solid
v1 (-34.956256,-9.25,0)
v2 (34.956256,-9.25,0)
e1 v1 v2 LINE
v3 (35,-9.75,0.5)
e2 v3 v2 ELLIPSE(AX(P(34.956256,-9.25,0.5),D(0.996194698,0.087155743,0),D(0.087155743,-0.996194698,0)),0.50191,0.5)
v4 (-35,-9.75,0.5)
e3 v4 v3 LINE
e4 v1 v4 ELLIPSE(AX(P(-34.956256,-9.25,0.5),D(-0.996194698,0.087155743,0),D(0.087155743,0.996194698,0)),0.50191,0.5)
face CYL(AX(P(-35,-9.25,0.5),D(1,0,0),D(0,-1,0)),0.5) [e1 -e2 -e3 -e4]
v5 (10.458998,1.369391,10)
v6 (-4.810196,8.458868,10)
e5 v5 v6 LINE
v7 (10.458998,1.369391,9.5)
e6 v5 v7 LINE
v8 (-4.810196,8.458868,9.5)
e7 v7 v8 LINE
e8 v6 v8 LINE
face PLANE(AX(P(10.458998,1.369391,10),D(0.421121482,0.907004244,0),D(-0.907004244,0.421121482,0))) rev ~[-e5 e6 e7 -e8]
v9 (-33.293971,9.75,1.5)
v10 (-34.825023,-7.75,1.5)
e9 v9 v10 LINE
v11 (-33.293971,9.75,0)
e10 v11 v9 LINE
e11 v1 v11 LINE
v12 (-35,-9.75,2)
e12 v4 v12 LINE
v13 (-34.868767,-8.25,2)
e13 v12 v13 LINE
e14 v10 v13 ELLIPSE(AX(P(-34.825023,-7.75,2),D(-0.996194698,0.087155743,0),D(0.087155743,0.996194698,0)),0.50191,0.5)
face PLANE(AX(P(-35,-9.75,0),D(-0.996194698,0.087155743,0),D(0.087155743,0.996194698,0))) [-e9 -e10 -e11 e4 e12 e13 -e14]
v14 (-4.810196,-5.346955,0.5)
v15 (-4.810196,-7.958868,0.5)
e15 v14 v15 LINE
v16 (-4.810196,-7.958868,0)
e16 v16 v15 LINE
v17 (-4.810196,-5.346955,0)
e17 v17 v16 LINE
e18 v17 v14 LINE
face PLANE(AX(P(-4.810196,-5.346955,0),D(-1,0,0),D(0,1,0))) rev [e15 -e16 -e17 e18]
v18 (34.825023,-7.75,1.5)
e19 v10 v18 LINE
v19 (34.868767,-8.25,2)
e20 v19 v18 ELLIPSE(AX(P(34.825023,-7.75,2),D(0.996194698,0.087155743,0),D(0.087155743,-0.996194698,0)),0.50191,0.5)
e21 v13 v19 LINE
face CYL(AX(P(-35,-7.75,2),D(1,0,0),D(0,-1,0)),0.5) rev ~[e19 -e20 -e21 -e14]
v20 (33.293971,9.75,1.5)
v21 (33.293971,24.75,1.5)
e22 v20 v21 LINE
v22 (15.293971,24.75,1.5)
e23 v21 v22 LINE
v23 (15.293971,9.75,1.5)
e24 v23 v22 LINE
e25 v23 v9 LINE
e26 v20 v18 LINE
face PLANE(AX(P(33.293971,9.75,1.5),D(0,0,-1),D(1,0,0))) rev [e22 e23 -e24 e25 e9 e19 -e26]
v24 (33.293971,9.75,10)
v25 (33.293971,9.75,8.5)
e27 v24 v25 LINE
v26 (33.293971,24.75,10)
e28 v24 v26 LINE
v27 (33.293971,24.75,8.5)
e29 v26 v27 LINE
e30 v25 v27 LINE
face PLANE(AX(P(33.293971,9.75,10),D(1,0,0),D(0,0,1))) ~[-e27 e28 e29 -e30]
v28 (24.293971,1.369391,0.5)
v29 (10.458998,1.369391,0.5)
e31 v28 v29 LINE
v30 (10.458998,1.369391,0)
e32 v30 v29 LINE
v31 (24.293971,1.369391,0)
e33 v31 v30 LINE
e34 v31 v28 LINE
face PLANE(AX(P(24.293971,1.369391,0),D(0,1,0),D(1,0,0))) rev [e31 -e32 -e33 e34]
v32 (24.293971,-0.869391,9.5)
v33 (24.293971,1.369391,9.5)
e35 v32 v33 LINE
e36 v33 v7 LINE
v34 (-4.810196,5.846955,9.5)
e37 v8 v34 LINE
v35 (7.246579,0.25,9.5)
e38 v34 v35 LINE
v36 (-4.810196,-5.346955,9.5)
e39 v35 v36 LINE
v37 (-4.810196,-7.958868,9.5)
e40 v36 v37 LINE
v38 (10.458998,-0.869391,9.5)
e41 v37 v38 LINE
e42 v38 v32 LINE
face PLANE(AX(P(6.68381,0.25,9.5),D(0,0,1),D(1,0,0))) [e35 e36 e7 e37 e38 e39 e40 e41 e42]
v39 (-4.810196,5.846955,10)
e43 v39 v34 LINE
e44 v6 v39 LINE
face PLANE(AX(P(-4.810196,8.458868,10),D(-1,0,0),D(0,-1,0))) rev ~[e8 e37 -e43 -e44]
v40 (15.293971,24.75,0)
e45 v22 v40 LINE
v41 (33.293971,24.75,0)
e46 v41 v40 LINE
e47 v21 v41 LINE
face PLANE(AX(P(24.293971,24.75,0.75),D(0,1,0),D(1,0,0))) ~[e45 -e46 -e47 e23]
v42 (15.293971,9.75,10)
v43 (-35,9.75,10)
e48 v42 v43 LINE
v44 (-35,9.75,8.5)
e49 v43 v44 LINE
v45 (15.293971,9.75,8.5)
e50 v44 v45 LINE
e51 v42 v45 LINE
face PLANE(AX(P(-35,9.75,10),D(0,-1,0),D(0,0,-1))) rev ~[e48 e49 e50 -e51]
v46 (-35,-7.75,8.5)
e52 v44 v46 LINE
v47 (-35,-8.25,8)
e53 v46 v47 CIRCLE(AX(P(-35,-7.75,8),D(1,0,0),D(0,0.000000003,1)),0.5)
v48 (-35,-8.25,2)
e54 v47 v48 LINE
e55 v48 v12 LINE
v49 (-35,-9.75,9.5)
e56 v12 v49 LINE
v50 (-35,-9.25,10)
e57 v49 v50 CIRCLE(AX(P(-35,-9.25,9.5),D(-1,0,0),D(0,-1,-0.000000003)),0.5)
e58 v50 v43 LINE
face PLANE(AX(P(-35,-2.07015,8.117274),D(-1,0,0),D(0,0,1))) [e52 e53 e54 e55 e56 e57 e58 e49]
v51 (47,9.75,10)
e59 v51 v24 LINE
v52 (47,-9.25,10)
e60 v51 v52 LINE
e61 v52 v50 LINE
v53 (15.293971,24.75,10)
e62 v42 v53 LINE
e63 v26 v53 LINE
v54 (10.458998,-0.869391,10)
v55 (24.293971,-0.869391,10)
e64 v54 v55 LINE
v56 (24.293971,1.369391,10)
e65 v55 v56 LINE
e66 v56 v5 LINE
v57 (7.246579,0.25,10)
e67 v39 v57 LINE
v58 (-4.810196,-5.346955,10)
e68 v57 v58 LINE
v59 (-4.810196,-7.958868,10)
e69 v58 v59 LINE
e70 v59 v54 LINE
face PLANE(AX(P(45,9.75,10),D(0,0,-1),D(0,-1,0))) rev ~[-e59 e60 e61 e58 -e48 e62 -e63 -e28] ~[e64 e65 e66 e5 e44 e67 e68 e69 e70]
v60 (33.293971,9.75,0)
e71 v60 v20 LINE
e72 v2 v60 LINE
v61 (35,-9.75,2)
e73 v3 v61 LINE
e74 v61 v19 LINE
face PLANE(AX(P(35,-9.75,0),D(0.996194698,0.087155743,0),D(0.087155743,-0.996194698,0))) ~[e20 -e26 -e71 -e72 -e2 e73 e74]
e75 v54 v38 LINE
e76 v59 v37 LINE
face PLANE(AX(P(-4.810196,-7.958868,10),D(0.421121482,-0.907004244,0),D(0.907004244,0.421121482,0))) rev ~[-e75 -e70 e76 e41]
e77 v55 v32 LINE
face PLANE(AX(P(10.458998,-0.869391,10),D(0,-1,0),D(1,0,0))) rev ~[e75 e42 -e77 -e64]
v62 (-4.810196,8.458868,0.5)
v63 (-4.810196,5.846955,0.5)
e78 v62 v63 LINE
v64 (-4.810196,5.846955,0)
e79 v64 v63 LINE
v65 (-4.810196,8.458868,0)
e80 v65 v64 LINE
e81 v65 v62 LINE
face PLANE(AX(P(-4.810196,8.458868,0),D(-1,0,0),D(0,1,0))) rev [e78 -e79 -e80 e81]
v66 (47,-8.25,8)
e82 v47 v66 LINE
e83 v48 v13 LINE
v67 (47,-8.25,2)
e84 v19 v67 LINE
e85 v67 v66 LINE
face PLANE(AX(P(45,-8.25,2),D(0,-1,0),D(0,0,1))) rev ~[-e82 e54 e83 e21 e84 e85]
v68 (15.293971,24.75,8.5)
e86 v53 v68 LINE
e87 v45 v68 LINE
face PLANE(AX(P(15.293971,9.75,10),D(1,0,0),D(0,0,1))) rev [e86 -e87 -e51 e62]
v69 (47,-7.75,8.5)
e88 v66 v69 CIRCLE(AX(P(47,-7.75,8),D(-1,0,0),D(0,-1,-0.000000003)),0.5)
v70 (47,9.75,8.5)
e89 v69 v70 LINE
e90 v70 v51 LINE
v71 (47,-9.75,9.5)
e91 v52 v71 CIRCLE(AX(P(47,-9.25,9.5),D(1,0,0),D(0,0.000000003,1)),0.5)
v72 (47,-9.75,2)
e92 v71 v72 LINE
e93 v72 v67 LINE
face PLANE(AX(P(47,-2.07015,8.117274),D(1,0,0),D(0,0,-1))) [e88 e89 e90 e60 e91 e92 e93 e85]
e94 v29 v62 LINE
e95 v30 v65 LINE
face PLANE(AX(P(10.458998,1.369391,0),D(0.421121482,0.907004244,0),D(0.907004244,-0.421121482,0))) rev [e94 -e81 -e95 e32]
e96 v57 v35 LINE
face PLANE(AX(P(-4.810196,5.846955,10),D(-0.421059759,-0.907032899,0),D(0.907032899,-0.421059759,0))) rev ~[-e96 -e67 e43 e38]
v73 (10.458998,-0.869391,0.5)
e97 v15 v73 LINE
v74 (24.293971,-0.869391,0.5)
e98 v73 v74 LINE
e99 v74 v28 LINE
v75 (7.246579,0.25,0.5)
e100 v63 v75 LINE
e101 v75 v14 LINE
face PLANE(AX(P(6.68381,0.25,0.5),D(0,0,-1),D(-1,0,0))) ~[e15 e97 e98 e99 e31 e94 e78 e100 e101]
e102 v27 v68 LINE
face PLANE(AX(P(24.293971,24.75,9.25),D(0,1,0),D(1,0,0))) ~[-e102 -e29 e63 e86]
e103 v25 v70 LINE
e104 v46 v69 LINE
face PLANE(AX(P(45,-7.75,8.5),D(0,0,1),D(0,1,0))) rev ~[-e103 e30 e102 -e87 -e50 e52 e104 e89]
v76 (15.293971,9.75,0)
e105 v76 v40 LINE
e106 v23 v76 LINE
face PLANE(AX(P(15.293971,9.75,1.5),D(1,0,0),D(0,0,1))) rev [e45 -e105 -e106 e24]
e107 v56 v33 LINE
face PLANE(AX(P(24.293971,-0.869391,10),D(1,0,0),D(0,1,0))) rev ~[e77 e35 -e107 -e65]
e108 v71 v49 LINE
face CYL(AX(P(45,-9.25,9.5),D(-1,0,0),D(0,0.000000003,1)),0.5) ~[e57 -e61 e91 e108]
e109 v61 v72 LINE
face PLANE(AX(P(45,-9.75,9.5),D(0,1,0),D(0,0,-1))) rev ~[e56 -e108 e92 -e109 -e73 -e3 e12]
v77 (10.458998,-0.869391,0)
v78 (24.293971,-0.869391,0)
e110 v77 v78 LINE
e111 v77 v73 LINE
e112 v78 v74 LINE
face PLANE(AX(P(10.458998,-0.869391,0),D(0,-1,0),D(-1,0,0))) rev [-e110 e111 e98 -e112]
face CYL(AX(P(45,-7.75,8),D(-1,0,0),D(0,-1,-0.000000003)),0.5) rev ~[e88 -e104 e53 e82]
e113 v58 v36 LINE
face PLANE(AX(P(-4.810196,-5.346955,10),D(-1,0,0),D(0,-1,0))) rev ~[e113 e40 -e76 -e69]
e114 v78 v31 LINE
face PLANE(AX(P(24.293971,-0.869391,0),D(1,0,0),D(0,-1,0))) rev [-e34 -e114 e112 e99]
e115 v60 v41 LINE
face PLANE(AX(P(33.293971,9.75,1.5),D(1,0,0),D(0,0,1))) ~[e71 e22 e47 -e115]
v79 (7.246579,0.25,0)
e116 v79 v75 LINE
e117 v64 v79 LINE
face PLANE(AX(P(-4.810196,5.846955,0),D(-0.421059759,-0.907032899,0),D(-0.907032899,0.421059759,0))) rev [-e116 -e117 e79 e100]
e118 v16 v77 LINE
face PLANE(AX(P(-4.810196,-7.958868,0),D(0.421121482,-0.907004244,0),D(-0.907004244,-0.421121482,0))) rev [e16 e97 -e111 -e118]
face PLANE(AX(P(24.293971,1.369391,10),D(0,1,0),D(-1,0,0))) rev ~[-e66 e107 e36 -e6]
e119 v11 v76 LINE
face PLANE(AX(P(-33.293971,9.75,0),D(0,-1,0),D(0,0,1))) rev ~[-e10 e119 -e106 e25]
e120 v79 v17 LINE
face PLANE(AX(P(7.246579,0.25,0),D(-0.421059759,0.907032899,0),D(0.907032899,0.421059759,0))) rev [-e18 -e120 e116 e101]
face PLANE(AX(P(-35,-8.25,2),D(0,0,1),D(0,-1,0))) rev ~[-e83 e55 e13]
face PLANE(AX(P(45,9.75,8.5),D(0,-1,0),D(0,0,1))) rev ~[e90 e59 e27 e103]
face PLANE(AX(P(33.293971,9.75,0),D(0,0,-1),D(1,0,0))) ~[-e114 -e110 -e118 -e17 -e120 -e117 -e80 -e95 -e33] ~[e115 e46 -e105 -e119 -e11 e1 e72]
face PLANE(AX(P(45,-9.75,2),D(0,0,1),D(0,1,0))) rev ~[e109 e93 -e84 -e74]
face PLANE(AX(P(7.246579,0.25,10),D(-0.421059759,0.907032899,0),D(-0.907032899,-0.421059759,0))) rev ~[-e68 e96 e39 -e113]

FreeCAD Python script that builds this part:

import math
import FreeCAD as App
import Part
import Sketcher
from FreeCAD import Vector
Q = App.Units.Quantity


def edges_at(feature, points):
    """Names of the edges that pass closest to the given points."""
    edges = feature.Shape.Edges
    near = lambda p: min(range(len(edges)), key=lambda i: edges[i].distToShape(Part.Vertex(*p))[0])
    return sorted({f"Edge{near(p) + 1}" for p in points})


def faces_at(feature, points):
    """Names of the faces that lie closest to the given points."""
    faces = feature.Shape.Faces
    near = lambda p: min(range(len(faces)), key=lambda i: faces[i].distToShape(Part.Vertex(*p))[0])
    return sorted({f"Face{near(p) + 1}" for p in points})

doc = App.newDocument("Part")
body = doc.addObject("PartDesign::Body", "Body")

# Sketch on XY plane
sketch1 = doc.addObject("Sketcher::SketchObject", "Sketch")
body.addObject(sketch1)
sketch1.AttachmentSupport = (doc.XY_Plane, [""])
sketch1.MapMode = "FlatFace"
sketch1.addGeometry(Part.LineSegment(Vector(-35, 10, 0), Vector(-35, -10, 0)), False)
sketch1.addGeometry(Part.LineSegment(Vector(-35, -10, 0), Vector(35, -10, 0)), False)
sketch1.addGeometry(Part.LineSegment(Vector(35, -10, 0), Vector(35, 10, 0)), False)
sketch1.addGeometry(Part.LineSegment(Vector(35, 10, 0), Vector(-35, 10, 0)), False)
sketch1.addConstraint(Sketcher.Constraint("Coincident", 0, 2, 1, 1))
sketch1.addConstraint(Sketcher.Constraint("Coincident", 1, 2, 2, 1))
sketch1.addConstraint(Sketcher.Constraint("Coincident", 2, 2, 3, 1))
sketch1.addConstraint(Sketcher.Constraint("Coincident", 3, 2, 0, 1))
sketch1.addConstraint(Sketcher.Constraint("Vertical", 0))
sketch1.addConstraint(Sketcher.Constraint("Horizontal", 1))
sketch1.addConstraint(Sketcher.Constraint("Vertical", 2))
sketch1.addConstraint(Sketcher.Constraint("Horizontal", 3))
sketch1.addConstraint(Sketcher.Constraint("Symmetric", 0, 2, 2, 2, -1, 1))
sketch1.addConstraint(Sketcher.Constraint("DistanceX", 1, 1, 1, 2, Q("70 mm")))
sketch1.addConstraint(Sketcher.Constraint("DistanceY", 0, 2, 0, 1, Q("19.5 mm")))
pad1 = doc.addObject("PartDesign::Pad", "Pad")
body.addObject(pad1)
pad1.Profile = sketch1
pad1.Length = 10
doc.recompute()

thickness = doc.addObject("PartDesign::Thickness", "Thickness")
body.addObject(thickness)
thickness.Base = (pad1, faces_at(pad1, [(-35, 0, 5), (0, 9.75, 5), (35, 0, 5)]))
thickness.Value = 1.5
thickness.Reversed = True
thickness.Join = "Intersection"
doc.recompute()

fillet = doc.addObject("PartDesign::Fillet", "Fillet")
body.addObject(fillet)
fillet.Base = (thickness, edges_at(thickness, [(0, -8.25, 1.5), (0, -8.25, 8.5)]))
fillet.Radius = 0.5
doc.recompute()

fillet2 = doc.addObject("PartDesign::Fillet", "Fillet001")
body.addObject(fillet2)
fillet2.Base = (fillet, edges_at(fillet, [(0, -9.75, 10), (0, -9.75, 0)]))
fillet2.Radius = 0.5

# Sketch on XY plane
sketch2 = doc.addObject("Sketcher::SketchObject", "Sketch001")
body.addObject(sketch2)
sketch2.AttachmentSupport = (doc.XY_Plane, [""])
sketch2.MapMode = "FlatFace"
sketch2.addGeometry(Part.LineSegment(Vector(-33.3, 9.8, 0), Vector(-35, -9.8, 0)), False)
sketch2.addGeometry(Part.LineSegment(Vector(-35, -9.8, 0), Vector(-35, 9.8, 0)), False)
sketch2.addGeometry(Part.LineSegment(Vector(-35, 9.8, 0), Vector(-33.3, 9.8, 0)), False)
sketch2.addConstraint(Sketcher.Constraint("Coincident", 0, 2, 1, 1))
sketch2.addConstraint(Sketcher.Constraint("Coincident", 1, 2, 2, 1))
sketch2.addConstraint(Sketcher.Constraint("Coincident", 2, 2, 0, 1))
sketch2.addConstraint(Sketcher.Constraint("Vertical", 1))
sketch2.addConstraint(Sketcher.Constraint("Horizontal", 2))
sketch2.addConstraint(Sketcher.Constraint("Angle", 0, Q("-95 deg")))
sketch2.addConstraint(Sketcher.Constraint("DistanceY", 1, 1, 1, 2, Q("19.5 mm")))
sketch2.addConstraint(Sketcher.Constraint("DistanceX", 0, 2, -1, 1, Q("35 mm")))
sketch2.addConstraint(Sketcher.Constraint("DistanceY", 0, 2, -1, 1, Q("9.75 mm")))
pocket1 = doc.addObject("PartDesign::Pocket", "Pocket")
body.addObject(pocket1)
pocket1.Profile = sketch2
pocket1.Length = 2
pocket1.Reversed = True
doc.recompute()

mirrored = doc.addObject("PartDesign::Mirrored", "Mirrored")
body.addObject(mirrored)
mirrored.Originals = [pocket1]
mirrored.MirrorPlane = (doc.YZ_Plane, [""])
body.Tip = mirrored

# Sketch on YZ plane
sketch3 = doc.addObject("Sketcher::SketchObject", "Sketch002")
body.addObject(sketch3)
sketch3.AttachmentSupport = (doc.YZ_Plane, [""])
sketch3.MapMode = "FlatFace"
sketch3.AttachmentOffset = App.Placement(Vector(0, 0, -35), App.Rotation())
sketch3.addGeometry(Part.LineSegment(Vector(-8.25, 2, 0), Vector(-9.75, 2, 0)), False)
sketch3.addGeometry(Part.LineSegment(Vector(-9.75, 2, 0), Vector(-9.75, 9.5, 0)), False)
sketch3.addGeometry(Part.ArcOfCircle(Part.Circle(Vector(-9.25, 9.5, 0), Vector(0, 0, 1), 0.5), math.radians(90), math.radians(180)), False)
sketch3.addGeometry(Part.LineSegment(Vector(-9.25, 10, 0), Vector(9.75, 10, 0)), False)
sketch3.addGeometry(Part.LineSegment(Vector(9.75, 10, 0), Vector(9.75, 8.5, 0)), False)
sketch3.addGeometry(Part.LineSegment(Vector(9.75, 8.5, 0), Vector(-7.75, 8.5, 0)), False)
sketch3.addGeometry(Part.ArcOfCircle(Part.Circle(Vector(-7.75, 8, 0), Vector(0, 0, 1), 0.5), math.radians(90), math.radians(180)), False)
sketch3.addGeometry(Part.LineSegment(Vector(-8.25, 8, 0), Vector(-8.25, 2, 0)), False)
sketch3.addConstraint(Sketcher.Constraint("Coincident", 0, 2, 1, 1))
sketch3.addConstraint(Sketcher.Constraint("Tangent", 1, 2, 2, 2))
sketch3.addConstraint(Sketcher.Constraint("Tangent", 2, 1, 3, 1))
sketch3.addConstraint(Sketcher.Constraint("Coincident", 3, 2, 4, 1))
sketch3.addConstraint(Sketcher.Constraint("Coincident", 4, 2, 5, 1))
sketch3.addConstraint(Sketcher.Constraint("Tangent", 5, 2, 6, 1))
sketch3.addConstraint(Sketcher.Constraint("Tangent", 6, 2, 7, 1))
sketch3.addConstraint(Sketcher.Constraint("Coincident", 7, 2, 0, 1))
sketch3.addConstraint(Sketcher.Constraint("Horizontal", 0))
sketch3.addConstraint(Sketcher.Constraint("Vertical", 1))
sketch3.addConstraint(Sketcher.Constraint("Horizontal", 3))
sketch3.addConstraint(Sketcher.Constraint("Vertical", 4))
sketch3.addConstraint(Sketcher.Constraint("Horizontal", 5))
sketch3.addConstraint(Sketcher.Constraint("Vertical", 7))
sketch3.addConstraint(Sketcher.Constraint("Equal", 2, 6))
sketch3.addConstraint(Sketcher.Constraint("Equal", 0, 4))
sketch3.addConstraint(Sketcher.Constraint("Radius", 2, Q("0.5 mm")))
sketch3.addConstraint(Sketcher.Constraint("DistanceX", 3, 1, 3, 2, Q("19 mm")))
sketch3.addConstraint(Sketcher.Constraint("DistanceY", 7, 2, 7, 1, Q("6 mm")))
sketch3.addConstraint(Sketcher.Constraint("DistanceX", 0, 2, 0, 1, Q("1.5 mm")))
sketch3.addConstraint(Sketcher.Constraint("DistanceY", -1, 1, 6, 3, Q("8 mm")))
sketch3.addConstraint(Sketcher.Constraint("DistanceX", 2, 3, -1, 1, Q("9.25 mm")))
pad2 = doc.addObject("PartDesign::Pad", "Pad001")
body.addObject(pad2)
pad2.Profile = sketch3
pad2.Length = 10
pad2.Reversed = True

# Sketch on XZ plane
sketch4 = doc.addObject("Sketcher::SketchObject", "Sketch003")
body.addObject(sketch4)
sketch4.AttachmentSupport = (doc.XZ_Plane, [""])
sketch4.MapMode = "FlatFace"
sketch4.AttachmentOffset = App.Placement(Vector(0, 0, -9.75), App.Rotation())
sketch4.addGeometry(Part.LineSegment(Vector(-33.3, 0, 0), Vector(-33.3, 1.5, 0)), False)
sketch4.addGeometry(Part.LineSegment(Vector(-33.3, 1.5, 0), Vector(-15.3, 1.5, 0)), False)
sketch4.addGeometry(Part.LineSegment(Vector(-15.3, 1.5, 0), Vector(-15.3, 0, 0)), False)
sketch4.addGeometry(Part.LineSegment(Vector(-15.3, 0, 0), Vector(-33.3, 0, 0)), False)
sketch4.addGeometry(Part.LineSegment(Vector(-33.3, 8.5, 0), Vector(-33.3, 10, 0)), False)
sketch4.addGeometry(Part.LineSegment(Vector(-33.3, 10, 0), Vector(-15.3, 10, 0)), False)
sketch4.addGeometry(Part.LineSegment(Vector(-15.3, 10, 0), Vector(-15.3, 8.5, 0)), False)
sketch4.addGeometry(Part.LineSegment(Vector(-15.3, 8.5, 0), Vector(-33.3, 8.5, 0)), False)
sketch4.addConstraint(Sketcher.Constraint("Coincident", 0, 2, 1, 1))
sketch4.addConstraint(Sketcher.Constraint("Coincident", 1, 2, 2, 1))
sketch4.addConstraint(Sketcher.Constraint("Coincident", 2, 2, 3, 1))
sketch4.addConstraint(Sketcher.Constraint("Coincident", 3, 2, 0, 1))
sketch4.addConstraint(Sketcher.Constraint("Coincident", 4, 2, 5, 1))
sketch4.addConstraint(Sketcher.Constraint("Coincident", 5, 2, 6, 1))
sketch4.addConstraint(Sketcher.Constraint("Coincident", 6, 2, 7, 1))
sketch4.addConstraint(Sketcher.Constraint("Coincident", 7, 2, 4, 1))
sketch4.addConstraint(Sketcher.Constraint("Vertical", 0))
sketch4.addConstraint(Sketcher.Constraint("Horizontal", 1))
sketch4.addConstraint(Sketcher.Constraint("Vertical", 2))
sketch4.addConstraint(Sketcher.Constraint("Horizontal", 3))
sketch4.addConstraint(Sketcher.Constraint("Vertical", 4))
sketch4.addConstraint(Sketcher.Constraint("Horizontal", 5))
sketch4.addConstraint(Sketcher.Constraint("Vertical", 6))
sketch4.addConstraint(Sketcher.Constraint("Horizontal", 7))
sketch4.addConstraint(Sketcher.Constraint("PointOnObject", 2, 2, -1))
sketch4.addConstraint(Sketcher.Constraint("Vertical", 3, 2, 4, 2))
sketch4.addConstraint(Sketcher.Constraint("Vertical", 2, 2, 5, 2))
sketch4.addConstraint(Sketcher.Constraint("Equal", 2, 4))
sketch4.addConstraint(Sketcher.Constraint("DistanceX", 1, 1, 1, 2, Q("18 mm")))
sketch4.addConstraint(Sketcher.Constraint("DistanceY", 0, 1, 0, 2, Q("1.5 mm")))
sketch4.addConstraint(Sketcher.Constraint("DistanceY", -1, 1, 4, 2, Q("10 mm")))
sketch4.addConstraint(Sketcher.Constraint("DistanceX", 0, 2, -1, 1, Q("33.293971 mm")))
pad3 = doc.addObject("PartDesign::Pad", "Pad002")
body.addObject(pad3)
pad3.Profile = sketch4
pad3.Length = 15
pad3.Reversed = True
doc.recompute()

mirrored2 = doc.addObject("PartDesign::Mirrored", "Mirrored001")
body.addObject(mirrored2)
mirrored2.Originals = [pad2, pad3]
mirrored2.MirrorPlane = (doc.YZ_Plane, [""])
body.Tip = mirrored2

# Sketch on YZ plane
sketch5 = doc.addObject("Sketcher::SketchObject", "Sketch004")
body.addObject(sketch5)
sketch5.AttachmentSupport = (doc.YZ_Plane, [""])
sketch5.MapMode = "FlatFace"
sketch5.AttachmentOffset = App.Placement(Vector(0, 0, -45), App.Rotation())
sketch5.addGeometry(Part.LineSegment(Vector(-9.75, 2, 0), Vector(-9.75, 9.5, 0)), False)
sketch5.addGeometry(Part.ArcOfCircle(Part.Circle(Vector(-9.25, 9.5, 0), Vector(0, 0, 1), 0.5), math.radians(90), math.radians(180)), False)
sketch5.addGeometry(Part.LineSegment(Vector(-9.25, 10, 0), Vector(9.75, 10, 0)), False)
sketch5.addGeometry(Part.LineSegment(Vector(9.75, 10, 0), Vector(9.75, 8.5, 0)), False)
sketch5.addGeometry(Part.LineSegment(Vector(9.75, 8.5, 0), Vector(-7.75, 8.5, 0)), False)
sketch5.addGeometry(Part.ArcOfCircle(Part.Circle(Vector(-7.75, 8, 0), Vector(0, 0, 1), 0.5), math.radians(90), math.radians(180)), False)
sketch5.addGeometry(Part.LineSegment(Vector(-8.25, 8, 0), Vector(-8.25, 2, 0)), False)
sketch5.addGeometry(Part.LineSegment(Vector(-8.25, 2, 0), Vector(-9.75, 2, 0)), False)
sketch5.addConstraint(Sketcher.Constraint("Tangent", 0, 2, 1, 2))
sketch5.addConstraint(Sketcher.Constraint("Tangent", 1, 1, 2, 1))
sketch5.addConstraint(Sketcher.Constraint("Coincident", 2, 2, 3, 1))
sketch5.addConstraint(Sketcher.Constraint("Coincident", 3, 2, 4, 1))
sketch5.addConstraint(Sketcher.Constraint("Tangent", 4, 2, 5, 1))
sketch5.addConstraint(Sketcher.Constraint("Tangent", 5, 2, 6, 1))
sketch5.addConstraint(Sketcher.Constraint("Coincident", 6, 2, 7, 1))
sketch5.addConstraint(Sketcher.Constraint("Coincident", 7, 2, 0, 1))
sketch5.addConstraint(Sketcher.Constraint("Vertical", 0))
sketch5.addConstraint(Sketcher.Constraint("Horizontal", 2))
sketch5.addConstraint(Sketcher.Constraint("Vertical", 3))
sketch5.addConstraint(Sketcher.Constraint("Horizontal", 4))
sketch5.addConstraint(Sketcher.Constraint("Vertical", 6))
sketch5.addConstraint(Sketcher.Constraint("Horizontal", 7))
sketch5.addConstraint(Sketcher.Constraint("Equal", 1, 5))
sketch5.addConstraint(Sketcher.Constraint("Equal", 7, 3))
sketch5.addConstraint(Sketcher.Constraint("Radius", 1, Q("0.5 mm")))
sketch5.addConstraint(Sketcher.Constraint("DistanceX", 2, 1, 2, 2, Q("19 mm")))
sketch5.addConstraint(Sketcher.Constraint("DistanceY", 6, 2, 6, 1, Q("6 mm")))
sketch5.addConstraint(Sketcher.Constraint("DistanceX", 4, 2, 4, 1, Q("17.5 mm")))
sketch5.addConstraint(Sketcher.Constraint("DistanceY", -1, 1, 5, 3, Q("8 mm")))
sketch5.addConstraint(Sketcher.Constraint("DistanceX", 1, 3, -1, 1, Q("9.25 mm")))
pocket2 = doc.addObject("PartDesign::Pocket", "Pocket001")
body.addObject(pocket2)
pocket2.Profile = sketch5
pocket2.Length = 10
pocket2.Reversed = True

# Sketch on YZ plane
sketch6 = doc.addObject("Sketcher::SketchObject", "Sketch005")
body.addObject(sketch6)
sketch6.AttachmentSupport = (doc.YZ_Plane, [""])
sketch6.MapMode = "FlatFace"
sketch6.AttachmentOffset = App.Placement(Vector(0, 0, -33.293971), App.Rotation())
sketch6.addGeometry(Part.LineSegment(Vector(24.8, 0, 0), Vector(9.8, 0, 0)), False)
sketch6.addGeometry(Part.LineSegment(Vector(9.8, 0, 0), Vector(9.8, 1.5, 0)), False)
sketch6.addGeometry(Part.LineSegment(Vector(9.8, 1.5, 0), Vector(24.8, 1.5, 0)), False)
sketch6.addGeometry(Part.LineSegment(Vector(24.8, 1.5, 0), Vector(24.8, 0, 0)), False)
sketch6.addGeometry(Part.LineSegment(Vector(24.8, 8.5, 0), Vector(9.8, 8.5, 0)), False)
sketch6.addGeometry(Part.LineSegment(Vector(9.8, 8.5, 0), Vector(9.8, 10, 0)), False)
sketch6.addGeometry(Part.LineSegment(Vector(9.8, 10, 0), Vector(24.8, 10, 0)), False)
sketch6.addGeometry(Part.LineSegment(Vector(24.8, 10, 0), Vector(24.8, 8.5, 0)), False)
sketch6.addConstraint(Sketcher.Constraint("Coincident", 0, 2, 1, 1))
sketch6.addConstraint(Sketcher.Constraint("Coincident", 1, 2, 2, 1))
sketch6.addConstraint(Sketcher.Constraint("Coincident", 2, 2, 3, 1))
sketch6.addConstraint(Sketcher.Constraint("Coincident", 3, 2, 0, 1))
sketch6.addConstraint(Sketcher.Constraint("Coincident", 4, 2, 5, 1))
sketch6.addConstraint(Sketcher.Constraint("Coincident", 5, 2, 6, 1))
sketch6.addConstraint(Sketcher.Constraint("Coincident", 6, 2, 7, 1))
sketch6.addConstraint(Sketcher.Constraint("Coincident", 7, 2, 4, 1))
sketch6.addConstraint(Sketcher.Constraint("Horizontal", 0))
sketch6.addConstraint(Sketcher.Constraint("Vertical", 1))
sketch6.addConstraint(Sketcher.Constraint("Horizontal", 2))
sketch6.addConstraint(Sketcher.Constraint("Vertical", 3))
sketch6.addConstraint(Sketcher.Constraint("Horizontal", 4))
sketch6.addConstraint(Sketcher.Constraint("Vertical", 5))
sketch6.addConstraint(Sketcher.Constraint("Horizontal", 6))
sketch6.addConstraint(Sketcher.Constraint("Vertical", 7))
sketch6.addConstraint(Sketcher.Constraint("PointOnObject", 0, 2, -1))
sketch6.addConstraint(Sketcher.Constraint("Vertical", 1, 2, 4, 2))
sketch6.addConstraint(Sketcher.Constraint("Vertical", 3, 2, 6, 2))
sketch6.addConstraint(Sketcher.Constraint("Equal", 3, 5))
sketch6.addConstraint(Sketcher.Constraint("DistanceX", 0, 2, 0, 1, Q("15 mm")))
sketch6.addConstraint(Sketcher.Constraint("DistanceY", 1, 1, 1, 2, Q("1.5 mm")))
sketch6.addConstraint(Sketcher.Constraint("DistanceY", -1, 1, 5, 2, Q("10 mm")))
sketch6.addConstraint(Sketcher.Constraint("DistanceX", -1, 1, 0, 2, Q("9.75 mm")))
pocket3 = doc.addObject("PartDesign::Pocket", "Pocket002")
body.addObject(pocket3)
pocket3.Profile = sketch6
pocket3.Length = 18
pocket3.Reversed = True

# Sketch on XY plane
sketch7 = doc.addObject("Sketcher::SketchObject", "Sketch006")
body.addObject(sketch7)
sketch7.AttachmentSupport = (doc.XY_Plane, [""])
sketch7.MapMode = "FlatFace"
sketch7.AttachmentOffset = App.Placement(Vector(0, 0, 10), App.Rotation())
sketch7.addGeometry(Part.LineSegment(Vector(-4.8, 8.5, 0), Vector(-4.8, 5.8, 0)), False)
sketch7.addGeometry(Part.LineSegment(Vector(-4.8, 5.8, 0), Vector(7.2, 0.2, 0)), False)
sketch7.addGeometry(Part.LineSegment(Vector(7.2, 0.2, 0), Vector(-4.8, -5.3, 0)), False)
sketch7.addGeometry(Part.LineSegment(Vector(-4.8, -5.3, 0), Vector(-4.8, -8, 0)), False)
sketch7.addGeometry(Part.LineSegment(Vector(-4.8, -8, 0), Vector(10.5, -0.9, 0)), False)
sketch7.addGeometry(Part.LineSegment(Vector(10.5, -0.9, 0), Vector(24.3, -0.9, 0)), False)
sketch7.addGeometry(Part.LineSegment(Vector(24.3, -0.9, 0), Vector(24.3, 1.4, 0)), False)
sketch7.addGeometry(Part.LineSegment(Vector(24.3, 1.4, 0), Vector(10.5, 1.4, 0)), False)
sketch7.addGeometry(Part.LineSegment(Vector(10.5, 1.4, 0), Vector(-4.8, 8.5, 0)), False)
sketch7.addConstraint(Sketcher.Constraint("Coincident", 0, 2, 1, 1))
sketch7.addConstraint(Sketcher.Constraint("Coincident", 1, 2, 2, 1))
sketch7.addConstraint(Sketcher.Constraint("Coincident", 2, 2, 3, 1))
sketch7.addConstraint(Sketcher.Constraint("Coincident", 3, 2, 4, 1))
sketch7.addConstraint(Sketcher.Constraint("Coincident", 4, 2, 5, 1))
sketch7.addConstraint(Sketcher.Constraint("Coincident", 5, 2, 6, 1))
sketch7.addConstraint(Sketcher.Constraint("Coincident", 6, 2, 7, 1))
sketch7.addConstraint(Sketcher.Constraint("Coincident", 7, 2, 8, 1))
sketch7.addConstraint(Sketcher.Constraint("Coincident", 8, 2, 0, 1))
sketch7.addConstraint(Sketcher.Constraint("Vertical", 0))
sketch7.addConstraint(Sketcher.Constraint("Vertical", 3))
sketch7.addConstraint(Sketcher.Constraint("Horizontal", 5))
sketch7.addConstraint(Sketcher.Constraint("Vertical", 6))
sketch7.addConstraint(Sketcher.Constraint("Horizontal", 7))
sketch7.addConstraint(Sketcher.Constraint("Vertical", 0, 2, 2, 2))
sketch7.addConstraint(Sketcher.Constraint("Vertical", 4, 2, 7, 2))
sketch7.addConstraint(Sketcher.Constraint("Equal", 0, 3))
sketch7.addConstraint(Sketcher.Constraint("Equal", 1, 2))
sketch7.addConstraint(Sketcher.Constraint("Equal", 4, 8))
sketch7.addConstraint(Sketcher.Constraint("DistanceY", -1, 1, 1, 2, Q("0.25 mm")))
sketch7.addConstraint(Sketcher.Constraint("DistanceX", 5, 1, 5, 2, Q("13.834973 mm")))
sketch7.addConstraint(Sketcher.Constraint("DistanceY", 0, 2, 0, 1, Q("2.611912 mm")))
sketch7.addConstraint(Sketcher.Constraint("DistanceY", 6, 1, 6, 2, Q("2.238782 mm")))
sketch7.addConstraint(Sketcher.Constraint("DistanceX", -1, 1, 1, 2, Q("7.246579 mm")))
sketch7.addConstraint(Sketcher.Constraint("DistanceX", -1, 1, 5, 2, Q("24.293971 mm")))
sketch7.addConstraint(Sketcher.Constraint("DistanceY", 2, 2, 0, 2, Q("11.19391 mm")))
sketch7.addConstraint(Sketcher.Constraint("Distance", 1, Q("13.292543 mm")))
pocket4 = doc.addObject("PartDesign::Pocket", "Pocket003")
body.addObject(pocket4)
pocket4.Profile = sketch7
pocket4.Length = 0.5
doc.recompute()

datumplane = doc.addObject("PartDesign::Plane", "DatumPlane")
body.addObject(datumplane)
datumplane.AttachmentSupport = (doc.XY_Plane, [""])
datumplane.MapMode = "FlatFace"
datumplane.AttachmentOffset = App.Placement(Vector(0, 0, 5), App.Rotation())
mirrored3 = doc.addObject("PartDesign::Mirrored", "Mirrored002")
body.addObject(mirrored3)
mirrored3.Originals = [pocket4]
mirrored3.MirrorPlane = (datumplane, [""])
body.Tip = mirrored3

# Sketch on YZ plane
sketch8 = doc.addObject("Sketcher::SketchObject", "Sketch007")
body.addObject(sketch8)
sketch8.AttachmentSupport = (doc.YZ_Plane, [""])
sketch8.MapMode = "FlatFace"
sketch8.AttachmentOffset = App.Placement(Vector(0, 0, 45), App.Rotation())
sketch8.addGeometry(Part.LineSegment(Vector(-9.75, 9.5, 0), Vector(-9.75, 2, 0)), False)
sketch8.addGeometry(Part.LineSegment(Vector(-9.75, 2, 0), Vector(-8.25, 2, 0)), False)
sketch8.addGeometry(Part.LineSegment(Vector(-8.25, 2, 0), Vector(-8.25, 8, 0)), False)
sketch8.addGeometry(Part.ArcOfCircle(Part.Circle(Vector(-7.75, 8, 0), Vector(0, 0, 1), 0.5), math.radians(90), math.radians(180)), False)
sketch8.addGeometry(Part.LineSegment(Vector(-7.75, 8.5, 0), Vector(9.75, 8.5, 0)), False)
sketch8.addGeometry(Part.LineSegment(Vector(9.75, 8.5, 0), Vector(9.75, 10, 0)), False)
sketch8.addGeometry(Part.LineSegment(Vector(9.75, 10, 0), Vector(-9.25, 10, 0)), False)
sketch8.addGeometry(Part.ArcOfCircle(Part.Circle(Vector(-9.25, 9.5, 0), Vector(0, 0, 1), 0.5), math.radians(90), math.radians(180)), False)
sketch8.addConstraint(Sketcher.Constraint("Coincident", 0, 2, 1, 1))
sketch8.addConstraint(Sketcher.Constraint("Coincident", 1, 2, 2, 1))
sketch8.addConstraint(Sketcher.Constraint("Tangent", 2, 2, 3, 2))
sketch8.addConstraint(Sketcher.Constraint("Tangent", 3, 1, 4, 1))
sketch8.addConstraint(Sketcher.Constraint("Coincident", 4, 2, 5, 1))
sketch8.addConstraint(Sketcher.Constraint("Coincident", 5, 2, 6, 1))
sketch8.addConstraint(Sketcher.Constraint("Tangent", 6, 2, 7, 1))
sketch8.addConstraint(Sketcher.Constraint("Tangent", 7, 2, 0, 1))
sketch8.addConstraint(Sketcher.Constraint("Vertical", 0))
sketch8.addConstraint(Sketcher.Constraint("Horizontal", 1))
sketch8.addConstraint(Sketcher.Constraint("Vertical", 2))
sketch8.addConstraint(Sketcher.Constraint("Horizontal", 4))
sketch8.addConstraint(Sketcher.Constraint("Vertical", 5))
sketch8.addConstraint(Sketcher.Constraint("Horizontal", 6))
sketch8.addConstraint(Sketcher.Constraint("Equal", 3, 7))
sketch8.addConstraint(Sketcher.Constraint("Equal", 1, 5))
sketch8.addConstraint(Sketcher.Constraint("Radius", 3, Q("0.5 mm")))
sketch8.addConstraint(Sketcher.Constraint("DistanceX", 6, 2, 6, 1, Q("19 mm")))
sketch8.addConstraint(Sketcher.Constraint("DistanceY", 2, 1, 2, 2, Q("6 mm")))
sketch8.addConstraint(Sketcher.Constraint("DistanceX", 1, 1, 1, 2, Q("1.5 mm")))
sketch8.addConstraint(Sketcher.Constraint("DistanceY", -1, 1, 3, 3, Q("8 mm")))
sketch8.addConstraint(Sketcher.Constraint("DistanceX", 3, 3, -1, 1, Q("7.75 mm")))
pad4 = doc.addObject("PartDesign::Pad", "Pad003")
body.addObject(pad4)
pad4.Profile = sketch8
pad4.Length = 2

doc.recompute()
